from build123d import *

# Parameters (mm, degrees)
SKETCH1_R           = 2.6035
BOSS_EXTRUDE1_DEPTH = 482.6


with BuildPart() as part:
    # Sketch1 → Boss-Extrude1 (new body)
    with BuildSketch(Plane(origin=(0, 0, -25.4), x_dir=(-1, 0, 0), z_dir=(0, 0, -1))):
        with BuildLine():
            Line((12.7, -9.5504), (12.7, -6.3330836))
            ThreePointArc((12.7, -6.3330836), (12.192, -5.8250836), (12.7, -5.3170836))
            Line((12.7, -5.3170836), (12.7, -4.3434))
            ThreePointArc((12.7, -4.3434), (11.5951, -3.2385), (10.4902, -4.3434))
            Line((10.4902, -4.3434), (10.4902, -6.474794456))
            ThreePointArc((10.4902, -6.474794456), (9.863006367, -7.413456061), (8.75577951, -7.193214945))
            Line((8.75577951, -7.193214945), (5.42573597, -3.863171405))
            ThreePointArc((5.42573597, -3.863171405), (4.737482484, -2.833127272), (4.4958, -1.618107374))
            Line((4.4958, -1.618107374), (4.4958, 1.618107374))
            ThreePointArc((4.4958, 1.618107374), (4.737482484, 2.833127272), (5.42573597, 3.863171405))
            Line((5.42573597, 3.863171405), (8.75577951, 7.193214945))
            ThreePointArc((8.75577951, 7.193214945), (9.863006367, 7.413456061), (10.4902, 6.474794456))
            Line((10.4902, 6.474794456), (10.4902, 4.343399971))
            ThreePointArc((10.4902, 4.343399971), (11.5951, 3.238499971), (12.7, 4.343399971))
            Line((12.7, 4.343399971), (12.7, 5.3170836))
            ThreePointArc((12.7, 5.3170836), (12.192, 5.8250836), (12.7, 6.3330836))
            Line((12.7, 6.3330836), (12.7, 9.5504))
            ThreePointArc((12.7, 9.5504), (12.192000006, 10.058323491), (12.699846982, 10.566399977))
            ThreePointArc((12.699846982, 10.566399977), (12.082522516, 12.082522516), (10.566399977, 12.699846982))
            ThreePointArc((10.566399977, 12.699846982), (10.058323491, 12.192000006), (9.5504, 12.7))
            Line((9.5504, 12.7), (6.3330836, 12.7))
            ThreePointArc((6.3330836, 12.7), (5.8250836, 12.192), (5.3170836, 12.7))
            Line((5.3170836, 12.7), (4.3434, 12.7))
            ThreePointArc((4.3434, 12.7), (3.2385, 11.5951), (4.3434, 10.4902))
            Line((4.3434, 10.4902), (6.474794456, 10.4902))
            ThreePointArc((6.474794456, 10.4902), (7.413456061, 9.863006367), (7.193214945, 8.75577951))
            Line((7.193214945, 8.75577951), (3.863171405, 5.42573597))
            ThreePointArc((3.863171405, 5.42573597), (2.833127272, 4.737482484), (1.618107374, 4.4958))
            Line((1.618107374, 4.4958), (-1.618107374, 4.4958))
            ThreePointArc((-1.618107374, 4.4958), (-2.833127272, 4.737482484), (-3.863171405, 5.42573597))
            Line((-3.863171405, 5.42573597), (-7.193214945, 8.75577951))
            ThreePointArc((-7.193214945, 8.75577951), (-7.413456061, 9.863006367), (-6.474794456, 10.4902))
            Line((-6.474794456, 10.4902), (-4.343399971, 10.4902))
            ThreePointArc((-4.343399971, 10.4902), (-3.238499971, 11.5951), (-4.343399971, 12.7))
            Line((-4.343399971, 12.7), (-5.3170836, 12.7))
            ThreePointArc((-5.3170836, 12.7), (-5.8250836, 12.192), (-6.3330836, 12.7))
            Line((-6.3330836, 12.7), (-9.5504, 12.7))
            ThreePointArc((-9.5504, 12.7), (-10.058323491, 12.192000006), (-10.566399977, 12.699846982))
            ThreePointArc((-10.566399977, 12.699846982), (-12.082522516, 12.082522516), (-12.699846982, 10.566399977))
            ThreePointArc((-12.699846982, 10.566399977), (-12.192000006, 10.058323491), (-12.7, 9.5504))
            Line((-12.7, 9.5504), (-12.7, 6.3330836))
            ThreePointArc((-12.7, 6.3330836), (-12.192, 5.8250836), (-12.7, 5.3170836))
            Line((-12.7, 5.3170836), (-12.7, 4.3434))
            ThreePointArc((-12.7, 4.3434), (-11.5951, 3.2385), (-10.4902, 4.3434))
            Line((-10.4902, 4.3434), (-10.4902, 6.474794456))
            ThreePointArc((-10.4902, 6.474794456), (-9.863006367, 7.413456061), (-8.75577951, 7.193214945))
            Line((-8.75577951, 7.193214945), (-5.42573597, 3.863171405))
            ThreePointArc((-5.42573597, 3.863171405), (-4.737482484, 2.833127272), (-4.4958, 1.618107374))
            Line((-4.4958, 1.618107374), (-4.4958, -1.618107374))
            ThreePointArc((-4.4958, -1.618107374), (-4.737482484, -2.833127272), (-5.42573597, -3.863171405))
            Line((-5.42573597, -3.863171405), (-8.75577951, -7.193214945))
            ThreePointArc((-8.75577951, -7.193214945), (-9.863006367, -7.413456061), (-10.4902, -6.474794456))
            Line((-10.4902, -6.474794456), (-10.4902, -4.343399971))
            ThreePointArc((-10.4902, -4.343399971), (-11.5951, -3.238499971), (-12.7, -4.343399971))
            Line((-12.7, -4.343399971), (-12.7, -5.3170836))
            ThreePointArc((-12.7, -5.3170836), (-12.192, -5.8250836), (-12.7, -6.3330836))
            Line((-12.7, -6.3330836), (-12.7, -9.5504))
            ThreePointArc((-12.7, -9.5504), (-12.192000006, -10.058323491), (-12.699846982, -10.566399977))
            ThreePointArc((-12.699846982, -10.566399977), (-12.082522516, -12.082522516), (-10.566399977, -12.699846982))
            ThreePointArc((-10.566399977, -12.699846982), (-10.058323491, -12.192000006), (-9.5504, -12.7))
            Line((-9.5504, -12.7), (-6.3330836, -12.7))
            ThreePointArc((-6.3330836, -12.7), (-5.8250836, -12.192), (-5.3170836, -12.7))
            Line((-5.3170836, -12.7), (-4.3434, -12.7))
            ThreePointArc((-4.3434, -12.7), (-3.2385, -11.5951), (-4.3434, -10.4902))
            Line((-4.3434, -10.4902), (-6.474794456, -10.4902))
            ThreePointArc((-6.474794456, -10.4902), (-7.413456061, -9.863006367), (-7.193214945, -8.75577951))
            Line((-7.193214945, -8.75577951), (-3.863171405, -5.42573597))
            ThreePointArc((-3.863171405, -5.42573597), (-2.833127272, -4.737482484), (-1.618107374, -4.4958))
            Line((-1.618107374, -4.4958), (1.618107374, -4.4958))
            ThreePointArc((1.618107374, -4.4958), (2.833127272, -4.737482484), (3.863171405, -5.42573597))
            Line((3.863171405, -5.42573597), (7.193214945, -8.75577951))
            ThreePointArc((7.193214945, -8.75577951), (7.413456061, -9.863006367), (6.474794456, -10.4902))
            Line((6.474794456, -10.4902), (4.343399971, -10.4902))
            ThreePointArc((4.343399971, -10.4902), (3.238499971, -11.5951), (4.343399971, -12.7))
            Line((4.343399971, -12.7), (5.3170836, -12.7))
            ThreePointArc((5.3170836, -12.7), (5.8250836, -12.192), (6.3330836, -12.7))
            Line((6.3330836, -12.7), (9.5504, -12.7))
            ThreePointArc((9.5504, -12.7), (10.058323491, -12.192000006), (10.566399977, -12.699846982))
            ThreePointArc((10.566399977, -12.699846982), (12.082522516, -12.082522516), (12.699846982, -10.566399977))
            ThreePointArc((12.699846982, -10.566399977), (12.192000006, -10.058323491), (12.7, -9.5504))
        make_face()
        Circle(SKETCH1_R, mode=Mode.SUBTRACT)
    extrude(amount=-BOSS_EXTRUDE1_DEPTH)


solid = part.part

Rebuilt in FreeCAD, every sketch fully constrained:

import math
import FreeCAD as App
import Part
import Sketcher

V = App.Vector
Q = App.Units.Quantity

doc = App.newDocument("Part")
body = doc.addObject("PartDesign::Body", "Body")

sketch1 = doc.addObject("Sketcher::SketchObject", "Sketch")
body.addObject(sketch1)
sketch1.AttachmentSupport = (doc.XY_Plane, [""])
sketch1.MapMode = "FlatFace"
sketch1.AttachmentOffset = App.Placement(V(0, 0, -1 * 25.4), App.Rotation())
sketch1.addGeometry([
    Part.LineSegment(V(-12.7, -9.6, 0), V(-12.7, -6.3, 0)),
    Part.ArcOfCircle(Part.Circle(V(-12.7, -5.8, 0), V(0, 0, 1), 0.5), math.radians(-90), math.radians(90)),
    Part.LineSegment(V(-12.7, -5.3, 0), V(-12.7, -4.3, 0)),
    Part.ArcOfCircle(Part.Circle(V(-11.6, -4.3, 0), V(0, 0, 1), 1.1), math.radians(0), math.radians(180)),
    Part.LineSegment(V(-10.5, -4.3, 0), V(-10.5, -6.5, 0)),
    Part.ArcOfCircle(Part.Circle(V(-9.5, -6.5, 0), V(0, 0, 1), 1), math.radians(180), math.radians(315)),
    Part.LineSegment(V(-8.8, -7.2, 0), V(-5.4, -3.9, 0)),
    Part.ArcOfCircle(Part.Circle(V(-7.7, -1.6, 0), V(0, 0, 1), 3.2), math.radians(-45), math.radians(0)),
    Part.LineSegment(V(-4.5, -1.6, 0), V(-4.5, 1.6, 0)),
    Part.ArcOfCircle(Part.Circle(V(-7.7, 1.6, 0), V(0, 0, 1), 3.2), math.radians(0), math.radians(45)),
    Part.LineSegment(V(-5.4, 3.9, 0), V(-8.8, 7.2, 0)),
    Part.ArcOfCircle(Part.Circle(V(-9.5, 6.5, 0), V(0, 0, 1), 1), math.radians(45), math.radians(180)),
    Part.LineSegment(V(-10.5, 6.5, 0), V(-10.5, 4.3, 0)),
    Part.ArcOfCircle(Part.Circle(V(-11.6, 4.3, 0), V(0, 0, 1), 1.1), math.radians(180), math.radians(360)),
    Part.LineSegment(V(-12.7, 4.3, 0), V(-12.7, 5.3, 0)),
    Part.ArcOfCircle(Part.Circle(V(-12.7, 5.8, 0), V(0, 0, 1), 0.5), math.radians(-90), math.radians(90)),
    Part.LineSegment(V(-12.7, 6.3, 0), V(-12.7, 9.6, 0)),
    Part.ArcOfCircle(Part.Circle(V(-12.7, 10.1, 0), V(0, 0, 1), 0.5), math.radians(-90), math.radians(90)),
    Part.ArcOfCircle(Part.Circle(V(-10.6, 10.6, 0), V(0, 0, 1), 2.1), math.radians(89), math.radians(181)),
    Part.ArcOfCircle(Part.Circle(V(-10.1, 12.7, 0), V(0, 0, 1), 0.5), math.radians(-180), math.radians(0)),
    Part.LineSegment(V(-9.6, 12.7, 0), V(-6.3, 12.7, 0)),
    Part.ArcOfCircle(Part.Circle(V(-5.8, 12.7, 0), V(0, 0, 1), 0.5), math.radians(180), math.radians(360)),
    Part.LineSegment(V(-5.3, 12.7, 0), V(-4.3, 12.7, 0)),
    Part.ArcOfCircle(Part.Circle(V(-4.3, 11.6, 0), V(0, 0, 1), 1.1), math.radians(-90), math.radians(90)),
    Part.LineSegment(V(-4.3, 10.5, 0), V(-6.5, 10.5, 0)),
    Part.ArcOfCircle(Part.Circle(V(-6.5, 9.5, 0), V(0, 0, 1), 1), math.radians(90), math.radians(225)),
    Part.LineSegment(V(-7.2, 8.8, 0), V(-3.9, 5.4, 0)),
    Part.ArcOfCircle(Part.Circle(V(-1.6, 7.7, 0), V(0, 0, 1), 3.2), math.radians(-135), math.radians(-90)),
    Part.LineSegment(V(-1.6, 4.5, 0), V(1.6, 4.5, 0)),
    Part.ArcOfCircle(Part.Circle(V(1.6, 7.7, 0), V(0, 0, 1), 3.2), math.radians(-90), math.radians(-45)),
    Part.LineSegment(V(3.9, 5.4, 0), V(7.2, 8.8, 0)),
    Part.ArcOfCircle(Part.Circle(V(6.5, 9.5, 0), V(0, 0, 1), 1), math.radians(-45), math.radians(90)),
    Part.LineSegment(V(6.5, 10.5, 0), V(4.3, 10.5, 0)),
    Part.ArcOfCircle(Part.Circle(V(4.3, 11.6, 0), V(0, 0, 1), 1.1), math.radians(90), math.radians(270)),
    Part.LineSegment(V(4.3, 12.7, 0), V(5.3, 12.7, 0)),
    Part.ArcOfCircle(Part.Circle(V(5.8, 12.7, 0), V(0, 0, 1), 0.5), math.radians(180), math.radians(360)),
    Part.LineSegment(V(6.3, 12.7, 0), V(9.6, 12.7, 0)),
    Part.ArcOfCircle(Part.Circle(V(10.1, 12.7, 0), V(0, 0, 1), 0.5), math.radians(180), math.radians(360)),
    Part.ArcOfCircle(Part.Circle(V(10.6, 10.6, 0), V(0, 0, 1), 2.1), math.radians(-1), math.radians(91)),
    Part.ArcOfCircle(Part.Circle(V(12.7, 10.1, 0), V(0, 0, 1), 0.5), math.radians(90), math.radians(270)),
    Part.LineSegment(V(12.7, 9.6, 0), V(12.7, 6.3, 0)),
    Part.ArcOfCircle(Part.Circle(V(12.7, 5.8, 0), V(0, 0, 1), 0.5), math.radians(90), math.radians(270)),
    Part.LineSegment(V(12.7, 5.3, 0), V(12.7, 4.3, 0)),
    Part.ArcOfCircle(Part.Circle(V(11.6, 4.3, 0), V(0, 0, 1), 1.1), math.radians(180), math.radians(360)),
    Part.LineSegment(V(10.5, 4.3, 0), V(10.5, 6.5, 0)),
    Part.ArcOfCircle(Part.Circle(V(9.5, 6.5, 0), V(0, 0, 1), 1), math.radians(0), math.radians(135)),
    Part.LineSegment(V(8.8, 7.2, 0), V(5.4, 3.9, 0)),
    Part.ArcOfCircle(Part.Circle(V(7.7, 1.6, 0), V(0, 0, 1), 3.2), math.radians(135), math.radians(180)),
    Part.LineSegment(V(4.5, 1.6, 0), V(4.5, -1.6, 0)),
    Part.ArcOfCircle(Part.Circle(V(7.7, -1.6, 0), V(0, 0, 1), 3.2), math.radians(180), math.radians(225)),
    Part.LineSegment(V(5.4, -3.9, 0), V(8.8, -7.2, 0)),
    Part.ArcOfCircle(Part.Circle(V(9.5, -6.5, 0), V(0, 0, 1), 1), math.radians(-135), math.radians(0)),
    Part.LineSegment(V(10.5, -6.5, 0), V(10.5, -4.3, 0)),
    Part.ArcOfCircle(Part.Circle(V(11.6, -4.3, 0), V(0, 0, 1), 1.1), math.radians(0), math.radians(180)),
    Part.LineSegment(V(12.7, -4.3, 0), V(12.7, -5.3, 0)),
    Part.ArcOfCircle(Part.Circle(V(12.7, -5.8, 0), V(0, 0, 1), 0.5), math.radians(90), math.radians(270)),
    Part.LineSegment(V(12.7, -6.3, 0), V(12.7, -9.6, 0)),
    Part.ArcOfCircle(Part.Circle(V(12.7, -10.1, 0), V(0, 0, 1), 0.5), math.radians(90), math.radians(270)),
    Part.ArcOfCircle(Part.Circle(V(10.6, -10.6, 0), V(0, 0, 1), 2.1), math.radians(-91), math.radians(1)),
    Part.ArcOfCircle(Part.Circle(V(10.1, -12.7, 0), V(0, 0, 1), 0.5), math.radians(0), math.radians(180)),
    Part.LineSegment(V(9.6, -12.7, 0), V(6.3, -12.7, 0)),
    Part.ArcOfCircle(Part.Circle(V(5.8, -12.7, 0), V(0, 0, 1), 0.5), math.radians(0), math.radians(180)),
    Part.LineSegment(V(5.3, -12.7, 0), V(4.3, -12.7, 0)),
    Part.ArcOfCircle(Part.Circle(V(4.3, -11.6, 0), V(0, 0, 1), 1.1), math.radians(90), math.radians(270)),
    Part.LineSegment(V(4.3, -10.5, 0), V(6.5, -10.5, 0)),
    Part.ArcOfCircle(Part.Circle(V(6.5, -9.5, 0), V(0, 0, 1), 1), math.radians(-90), math.radians(45)),
    Part.LineSegment(V(7.2, -8.8, 0), V(3.9, -5.4, 0)),
    Part.ArcOfCircle(Part.Circle(V(1.6, -7.7, 0), V(0, 0, 1), 3.2), math.radians(45), math.radians(90)),
    Part.LineSegment(V(1.6, -4.5, 0), V(-1.6, -4.5, 0)),
    Part.ArcOfCircle(Part.Circle(V(-1.6, -7.7, 0), V(0, 0, 1), 3.2), math.radians(90), math.radians(135)),
    Part.LineSegment(V(-3.9, -5.4, 0), V(-7.2, -8.8, 0)),
    Part.ArcOfCircle(Part.Circle(V(-6.5, -9.5, 0), V(0, 0, 1), 1), math.radians(135), math.radians(270)),
    Part.LineSegment(V(-6.5, -10.5, 0), V(-4.3, -10.5, 0)),
    Part.ArcOfCircle(Part.Circle(V(-4.3, -11.6, 0), V(0, 0, 1), 1.1), math.radians(-90), math.radians(90)),
    Part.LineSegment(V(-4.3, -12.7, 0), V(-5.3, -12.7, 0)),
    Part.ArcOfCircle(Part.Circle(V(-5.8, -12.7, 0), V(0, 0, 1), 0.5), math.radians(0), math.radians(180)),
    Part.LineSegment(V(-6.3, -12.7, 0), V(-9.6, -12.7, 0)),
    Part.ArcOfCircle(Part.Circle(V(-10.1, -12.7, 0), V(0, 0, 1), 0.5), math.radians(0), math.radians(180)),
    Part.ArcOfCircle(Part.Circle(V(-10.6, -10.6, 0), V(0, 0, 1), 2.1), math.radians(179), math.radians(271)),
    Part.ArcOfCircle(Part.Circle(V(-12.7, -10.1, 0), V(0, 0, 1), 0.5), math.radians(-90), math.radians(90)),
    Part.Circle(V(0, 0, 0), V(0, 0, 1), 2.6),
], False)
sketch1.addConstraint([
    Sketcher.Constraint("Coincident", 0, 2, 1, 1),
    Sketcher.Constraint("Coincident", 1, 2, 2, 1),
    Sketcher.Constraint("Tangent", 2, 2, 3, 2),
    Sketcher.Constraint("Tangent", 3, 1, 4, 1),
    Sketcher.Constraint("Tangent", 4, 2, 5, 1),
    Sketcher.Constraint("Tangent", 5, 2, 6, 1),
    Sketcher.Constraint("Tangent", 6, 2, 7, 1),
    Sketcher.Constraint("Tangent", 7, 2, 8, 1),
    Sketcher.Constraint("Tangent", 8, 2, 9, 1),
    Sketcher.Constraint("Tangent", 9, 2, 10, 1),
    Sketcher.Constraint("Tangent", 10, 2, 11, 1),
    Sketcher.Constraint("Tangent", 11, 2, 12, 1),
    Sketcher.Constraint("Tangent", 12, 2, 13, 2),
    Sketcher.Constraint("Tangent", 13, 1, 14, 1),
    Sketcher.Constraint("Coincident", 14, 2, 15, 1),
    Sketcher.Constraint("Coincident", 15, 2, 16, 1),
    Sketcher.Constraint("Coincident", 16, 2, 17, 1),
    Sketcher.Constraint("Coincident", 17, 2, 18, 2),
    Sketcher.Constraint("Coincident", 18, 1, 19, 1),
    Sketcher.Constraint("Coincident", 19, 2, 20, 1),
    Sketcher.Constraint("Coincident", 20, 2, 21, 1),
    Sketcher.Constraint("Coincident", 21, 2, 22, 1),
    Sketcher.Constraint("Tangent", 22, 2, 23, 2),
    Sketcher.Constraint("Tangent", 23, 1, 24, 1),
    Sketcher.Constraint("Tangent", 24, 2, 25, 1),
    Sketcher.Constraint("Tangent", 25, 2, 26, 1),
    Sketcher.Constraint("Tangent", 26, 2, 27, 1),
    Sketcher.Constraint("Tangent", 27, 2, 28, 1),
    Sketcher.Constraint("Tangent", 28, 2, 29, 1),
    Sketcher.Constraint("Tangent", 29, 2, 30, 1),
    Sketcher.Constraint("Tangent", 30, 2, 31, 1),
    Sketcher.Constraint("Tangent", 31, 2, 32, 1),
    Sketcher.Constraint("Tangent", 32, 2, 33, 2),
    Sketcher.Constraint("Tangent", 33, 1, 34, 1),
    Sketcher.Constraint("Coincident", 34, 2, 35, 1),
    Sketcher.Constraint("Coincident", 35, 2, 36, 1),
    Sketcher.Constraint("Coincident", 36, 2, 37, 1),
    Sketcher.Constraint("Coincident", 37, 2, 38, 2),
    Sketcher.Constraint("Coincident", 38, 1, 39, 1),
    Sketcher.Constraint("Coincident", 39, 2, 40, 1),
    Sketcher.Constraint("Coincident", 40, 2, 41, 1),
    Sketcher.Constraint("Coincident", 41, 2, 42, 1),
    Sketcher.Constraint("Tangent", 42, 2, 43, 2),
    Sketcher.Constraint("Tangent", 43, 1, 44, 1),
    Sketcher.Constraint("Tangent", 44, 2, 45, 1),
    Sketcher.Constraint("Tangent", 45, 2, 46, 1),
    Sketcher.Constraint("Tangent", 46, 2, 47, 1),
    Sketcher.Constraint("Tangent", 47, 2, 48, 1),
    Sketcher.Constraint("Tangent", 48, 2, 49, 1),
    Sketcher.Constraint("Tangent", 49, 2, 50, 1),
    Sketcher.Constraint("Tangent", 50, 2, 51, 1),
    Sketcher.Constraint("Tangent", 51, 2, 52, 1),
    Sketcher.Constraint("Tangent", 52, 2, 53, 2),
    Sketcher.Constraint("Tangent", 53, 1, 54, 1),
    Sketcher.Constraint("Coincident", 54, 2, 55, 1),
    Sketcher.Constraint("Coincident", 55, 2, 56, 1),
    Sketcher.Constraint("Coincident", 56, 2, 57, 1),
    Sketcher.Constraint("Coincident", 57, 2, 58, 2),
    Sketcher.Constraint("Coincident", 58, 1, 59, 1),
    Sketcher.Constraint("Coincident", 59, 2, 60, 1),
    Sketcher.Constraint("Coincident", 60, 2, 61, 1),
    Sketcher.Constraint("Coincident", 61, 2, 62, 1),
    Sketcher.Constraint("Tangent", 62, 2, 63, 2),
    Sketcher.Constraint("Tangent", 63, 1, 64, 1),
    Sketcher.Constraint("Tangent", 64, 2, 65, 1),
    Sketcher.Constraint("Tangent", 65, 2, 66, 1),
    Sketcher.Constraint("Tangent", 66, 2, 67, 1),
    Sketcher.Constraint("Tangent", 67, 2, 68, 1),
    Sketcher.Constraint("Tangent", 68, 2, 69, 1),
    Sketcher.Constraint("Tangent", 69, 2, 70, 1),
    Sketcher.Constraint("Tangent", 70, 2, 71, 1),
    Sketcher.Constraint("Tangent", 71, 2, 72, 1),
    Sketcher.Constraint("Tangent", 72, 2, 73, 2),
    Sketcher.Constraint("Tangent", 73, 1, 74, 1),
    Sketcher.Constraint("Coincident", 74, 2, 75, 1),
    Sketcher.Constraint("Coincident", 75, 2, 76, 1),
    Sketcher.Constraint("Coincident", 76, 2, 77, 1),
    Sketcher.Constraint("Coincident", 77, 2, 78, 2),
    Sketcher.Constraint("Coincident", 78, 1, 79, 1),
    Sketcher.Constraint("Coincident", 79, 2, 0, 1),
    Sketcher.Constraint("Vertical", 0),
    Sketcher.Constraint("Vertical", 2),
    Sketcher.Constraint("Vertical", 4),
    Sketcher.Constraint("Vertical", 8),
    Sketcher.Constraint("Vertical", 12),
    Sketcher.Constraint("Vertical", 14),
    Sketcher.Constraint("Vertical", 16),
    Sketcher.Constraint("Horizontal", 20),
    Sketcher.Constraint("Horizontal", 22),
    Sketcher.Constraint("Horizontal", 24),
    Sketcher.Constraint("Horizontal", 28),
    Sketcher.Constraint("Horizontal", 32),
    Sketcher.Constraint("Horizontal", 34),
    Sketcher.Constraint("Horizontal", 36),
    Sketcher.Constraint("Vertical", 40),
    Sketcher.Constraint("Vertical", 42),
    Sketcher.Constraint("Vertical", 44),
    Sketcher.Constraint("Vertical", 48),
    Sketcher.Constraint("Vertical", 52),
    Sketcher.Constraint("Vertical", 54),
    Sketcher.Constraint("Vertical", 56),
    Sketcher.Constraint("Horizontal", 60),
    Sketcher.Constraint("Horizontal", 62),
    Sketcher.Constraint("Horizontal", 64),
    Sketcher.Constraint("Horizontal", 68),
    Sketcher.Constraint("Horizontal", 72),
    Sketcher.Constraint("Horizontal", 74),
    Sketcher.Constraint("Horizontal", 76),
    Sketcher.Constraint("Coincident", 80, 3, -1, 1),
    Sketcher.Constraint("Equal", 7, 9),
    Sketcher.Constraint("Equal", 5, 11),
    Sketcher.Constraint("Equal", 3, 13),
    Sketcher.Constraint("Equal", 1, 15),
    Sketcher.Constraint("Equal", 15, 17),
    Sketcher.Constraint("Equal", 17, 19),
    Sketcher.Constraint("Equal", 19, 21),
    Sketcher.Constraint("Equal", 13, 23),
    Sketcher.Constraint("Equal", 11, 25),
    Sketcher.Constraint("Equal", 9, 27),
    Sketcher.Constraint("Equal", 27, 29),
    Sketcher.Constraint("Equal", 25, 31),
    Sketcher.Constraint("Equal", 23, 33),
    Sketcher.Constraint("Equal", 21, 35),
    Sketcher.Constraint("Equal", 35, 37),
    Sketcher.Constraint("Equal", 18, 38),
    Sketcher.Constraint("Equal", 37, 39),
    Sketcher.Constraint("Equal", 39, 41),
    Sketcher.Constraint("Equal", 33, 43),
    Sketcher.Constraint("Equal", 31, 45),
    Sketcher.Constraint("Equal", 29, 47),
    Sketcher.Constraint("Equal", 47, 49),
    Sketcher.Constraint("Equal", 45, 51),
    Sketcher.Constraint("Equal", 43, 53),
    Sketcher.Constraint("Equal", 41, 55),
    Sketcher.Constraint("Equal", 55, 57),
    Sketcher.Constraint("Equal", 38, 58),
    Sketcher.Constraint("Equal", 57, 59),
    Sketcher.Constraint("Equal", 59, 61),
    Sketcher.Constraint("Equal", 53, 63),
    Sketcher.Constraint("Equal", 51, 65),
    Sketcher.Constraint("Equal", 49, 67),
    Sketcher.Constraint("Equal", 67, 69),
    Sketcher.Constraint("Equal", 65, 71),
    Sketcher.Constraint("Equal", 63, 73),
    Sketcher.Constraint("Equal", 61, 75),
    Sketcher.Constraint("Equal", 75, 77),
    Sketcher.Constraint("Equal", 58, 78),
    Sketcher.Constraint("Equal", 77, 79),
    Sketcher.Constraint("Symmetric", 1, 3, 41, 3, -1, 1),
    Sketcher.Constraint("Symmetric", 3, 3, 43, 3, -1, 1),
    Sketcher.Constraint("Symmetric", 7, 3, 47, 3, -1, 1),
    Sketcher.Constraint("Symmetric", 11, 3, 51, 3, -1, 1),
    Sketcher.Constraint("Symmetric", 15, 3, 55, 3, -1, 1),
    Sketcher.Constraint("Symmetric", 17, 3, 57, 3, -1, 1),
    Sketcher.Constraint("Symmetric", 18, 3, 58, 3, -1, 1),
    Sketcher.Constraint("Symmetric", 19, 3, 59, 3, -1, 1),
    Sketcher.Constraint("Symmetric", 21, 3, 61, 3, -1, 1),
    Sketcher.Constraint("Symmetric", 23, 3, 63, 3, -1, 1),
    Sketcher.Constraint("Symmetric", 27, 3, 67, 3, -1, 1),
    Sketcher.Constraint("Symmetric", 31, 3, 71, 3, -1, 1),
    Sketcher.Constraint("Symmetric", 35, 3, 75, 3, -1, 1),
    Sketcher.Constraint("Symmetric", 37, 3, 77, 3, -1, 1),
    Sketcher.Constraint("Symmetric", 38, 3, 78, 3, -1, 1),
    Sketcher.Constraint("Symmetric", 39, 3, 79, 3, -1, 1),
    Sketcher.Constraint("Symmetric", 25, 3, 31, 3, -2),
    Sketcher.Constraint("Symmetric", 21, 3, 35, 3, -2),
    Sketcher.Constraint("Symmetric", 19, 3, 37, 3, -2),
    Sketcher.Constraint("Symmetric", 18, 3, 38, 3, -2),
    Sketcher.Constraint("Symmetric", 17, 3, 39, 3, -2),
    Sketcher.Constraint("Symmetric", 15, 3, 41, 3, -2),
    Sketcher.Constraint("Symmetric", 13, 3, 43, 3, -2),
    Sketcher.Constraint("Symmetric", 10, 2, 45, 2, -2),
    Sketcher.Constraint("Symmetric", 6, 2, 49, 2, -2),
    Sketcher.Constraint("Symmetric", 66, 2, 69, 2, -2),
    Sketcher.Constraint("Perpendicular", 6, 10),
    Sketcher.Constraint("Parallel", 10, 26),
    Sketcher.Constraint("Perpendicular", 26, 30),
    Sketcher.Constraint("Horizontal", 19, 3, 21, 3),
    Sketcher.Constraint("Horizontal", 3, 3, 53, 3),
    Sketcher.Constraint("Horizontal", 37, 3, 19, 2),
    Sketcher.Constraint("Horizontal", 20, 2, 21, 2),
    Sketcher.Constraint("Horizontal", 34, 2, 35, 2),
    Sketcher.Constraint("Horizontal", 77, 3, 59, 2),
    Sketcher.Constraint("Horizontal", 74, 2, 75, 2),
    Sketcher.Constraint("Vertical", 15, 3, 17, 3),
    Sketcher.Constraint("Vertical", 33, 3, 63, 3),
    Sketcher.Constraint("Vertical", 23, 3, 73, 3),
    Sketcher.Constraint("Vertical", 79, 3, 0, 2),
    Sketcher.Constraint("Vertical", 0, 2, 1, 2),
    Sketcher.Constraint("Vertical", 14, 2, 15, 2),
    Sketcher.Constraint("Vertical", 57, 3, 39, 2),
    Sketcher.Constraint("Vertical", 54, 2, 55, 2),
    Sketcher.Constraint("Equal", 76, 0),
    Sketcher.Constraint("Equal", 74, 2),
    Sketcher.Constraint("Equal", 72, 4),
    Sketcher.Constraint("Equal", 68, 8),
    Sketcher.Constraint("Equal", 10, 26),
    Sketcher.Constraint("Radius", 1, Q("0.02 in")),
    Sketcher.Constraint("Radius", 5, Q("0.04 in")),
    Sketcher.Constraint("Diameter", 80, Q("0.205 in")),
    Sketcher.Constraint("Radius", 7, Q("0.125 in")),
    Sketcher.Constraint("Radius", 18, Q("0.083 in")),
    Sketcher.Constraint("DistanceX", 1, 3, -1, 1, Q("0.5 in")),
    Sketcher.Constraint("DistanceY", -1, 1, 19, 3, Q("0.5 in")),
    Sketcher.Constraint("Radius", 3, Q("0.0435 in")),
    Sketcher.Constraint("DistanceY", 3, 3, -1, 1, Q("0.171 in")),
    Sketcher.Constraint("DistanceX", 7, 3, -1, 1, Q("0.302 in")),
    Sketcher.Constraint("DistanceY", -1, 1, 17, 3, Q("0.396 in")),
    Sketcher.Constraint("DistanceX", 18, 3, -1, 1, Q("0.417 in")),
    Sketcher.Constraint("DistanceY", -1, 1, 18, 3, Q("0.417 in")),
    Sketcher.Constraint("DistanceX", 20, 1, 20, 2, Q("3.217316 mm")),
    Sketcher.Constraint("DistanceX", 24, 2, 24, 1, Q("2.131394 mm")),
])
pad1 = doc.addObject("PartDesign::Pad", "Pad")
body.addObject(pad1)
pad1.Profile = sketch1
pad1.Length = Q("19 in")

doc.recompute()
